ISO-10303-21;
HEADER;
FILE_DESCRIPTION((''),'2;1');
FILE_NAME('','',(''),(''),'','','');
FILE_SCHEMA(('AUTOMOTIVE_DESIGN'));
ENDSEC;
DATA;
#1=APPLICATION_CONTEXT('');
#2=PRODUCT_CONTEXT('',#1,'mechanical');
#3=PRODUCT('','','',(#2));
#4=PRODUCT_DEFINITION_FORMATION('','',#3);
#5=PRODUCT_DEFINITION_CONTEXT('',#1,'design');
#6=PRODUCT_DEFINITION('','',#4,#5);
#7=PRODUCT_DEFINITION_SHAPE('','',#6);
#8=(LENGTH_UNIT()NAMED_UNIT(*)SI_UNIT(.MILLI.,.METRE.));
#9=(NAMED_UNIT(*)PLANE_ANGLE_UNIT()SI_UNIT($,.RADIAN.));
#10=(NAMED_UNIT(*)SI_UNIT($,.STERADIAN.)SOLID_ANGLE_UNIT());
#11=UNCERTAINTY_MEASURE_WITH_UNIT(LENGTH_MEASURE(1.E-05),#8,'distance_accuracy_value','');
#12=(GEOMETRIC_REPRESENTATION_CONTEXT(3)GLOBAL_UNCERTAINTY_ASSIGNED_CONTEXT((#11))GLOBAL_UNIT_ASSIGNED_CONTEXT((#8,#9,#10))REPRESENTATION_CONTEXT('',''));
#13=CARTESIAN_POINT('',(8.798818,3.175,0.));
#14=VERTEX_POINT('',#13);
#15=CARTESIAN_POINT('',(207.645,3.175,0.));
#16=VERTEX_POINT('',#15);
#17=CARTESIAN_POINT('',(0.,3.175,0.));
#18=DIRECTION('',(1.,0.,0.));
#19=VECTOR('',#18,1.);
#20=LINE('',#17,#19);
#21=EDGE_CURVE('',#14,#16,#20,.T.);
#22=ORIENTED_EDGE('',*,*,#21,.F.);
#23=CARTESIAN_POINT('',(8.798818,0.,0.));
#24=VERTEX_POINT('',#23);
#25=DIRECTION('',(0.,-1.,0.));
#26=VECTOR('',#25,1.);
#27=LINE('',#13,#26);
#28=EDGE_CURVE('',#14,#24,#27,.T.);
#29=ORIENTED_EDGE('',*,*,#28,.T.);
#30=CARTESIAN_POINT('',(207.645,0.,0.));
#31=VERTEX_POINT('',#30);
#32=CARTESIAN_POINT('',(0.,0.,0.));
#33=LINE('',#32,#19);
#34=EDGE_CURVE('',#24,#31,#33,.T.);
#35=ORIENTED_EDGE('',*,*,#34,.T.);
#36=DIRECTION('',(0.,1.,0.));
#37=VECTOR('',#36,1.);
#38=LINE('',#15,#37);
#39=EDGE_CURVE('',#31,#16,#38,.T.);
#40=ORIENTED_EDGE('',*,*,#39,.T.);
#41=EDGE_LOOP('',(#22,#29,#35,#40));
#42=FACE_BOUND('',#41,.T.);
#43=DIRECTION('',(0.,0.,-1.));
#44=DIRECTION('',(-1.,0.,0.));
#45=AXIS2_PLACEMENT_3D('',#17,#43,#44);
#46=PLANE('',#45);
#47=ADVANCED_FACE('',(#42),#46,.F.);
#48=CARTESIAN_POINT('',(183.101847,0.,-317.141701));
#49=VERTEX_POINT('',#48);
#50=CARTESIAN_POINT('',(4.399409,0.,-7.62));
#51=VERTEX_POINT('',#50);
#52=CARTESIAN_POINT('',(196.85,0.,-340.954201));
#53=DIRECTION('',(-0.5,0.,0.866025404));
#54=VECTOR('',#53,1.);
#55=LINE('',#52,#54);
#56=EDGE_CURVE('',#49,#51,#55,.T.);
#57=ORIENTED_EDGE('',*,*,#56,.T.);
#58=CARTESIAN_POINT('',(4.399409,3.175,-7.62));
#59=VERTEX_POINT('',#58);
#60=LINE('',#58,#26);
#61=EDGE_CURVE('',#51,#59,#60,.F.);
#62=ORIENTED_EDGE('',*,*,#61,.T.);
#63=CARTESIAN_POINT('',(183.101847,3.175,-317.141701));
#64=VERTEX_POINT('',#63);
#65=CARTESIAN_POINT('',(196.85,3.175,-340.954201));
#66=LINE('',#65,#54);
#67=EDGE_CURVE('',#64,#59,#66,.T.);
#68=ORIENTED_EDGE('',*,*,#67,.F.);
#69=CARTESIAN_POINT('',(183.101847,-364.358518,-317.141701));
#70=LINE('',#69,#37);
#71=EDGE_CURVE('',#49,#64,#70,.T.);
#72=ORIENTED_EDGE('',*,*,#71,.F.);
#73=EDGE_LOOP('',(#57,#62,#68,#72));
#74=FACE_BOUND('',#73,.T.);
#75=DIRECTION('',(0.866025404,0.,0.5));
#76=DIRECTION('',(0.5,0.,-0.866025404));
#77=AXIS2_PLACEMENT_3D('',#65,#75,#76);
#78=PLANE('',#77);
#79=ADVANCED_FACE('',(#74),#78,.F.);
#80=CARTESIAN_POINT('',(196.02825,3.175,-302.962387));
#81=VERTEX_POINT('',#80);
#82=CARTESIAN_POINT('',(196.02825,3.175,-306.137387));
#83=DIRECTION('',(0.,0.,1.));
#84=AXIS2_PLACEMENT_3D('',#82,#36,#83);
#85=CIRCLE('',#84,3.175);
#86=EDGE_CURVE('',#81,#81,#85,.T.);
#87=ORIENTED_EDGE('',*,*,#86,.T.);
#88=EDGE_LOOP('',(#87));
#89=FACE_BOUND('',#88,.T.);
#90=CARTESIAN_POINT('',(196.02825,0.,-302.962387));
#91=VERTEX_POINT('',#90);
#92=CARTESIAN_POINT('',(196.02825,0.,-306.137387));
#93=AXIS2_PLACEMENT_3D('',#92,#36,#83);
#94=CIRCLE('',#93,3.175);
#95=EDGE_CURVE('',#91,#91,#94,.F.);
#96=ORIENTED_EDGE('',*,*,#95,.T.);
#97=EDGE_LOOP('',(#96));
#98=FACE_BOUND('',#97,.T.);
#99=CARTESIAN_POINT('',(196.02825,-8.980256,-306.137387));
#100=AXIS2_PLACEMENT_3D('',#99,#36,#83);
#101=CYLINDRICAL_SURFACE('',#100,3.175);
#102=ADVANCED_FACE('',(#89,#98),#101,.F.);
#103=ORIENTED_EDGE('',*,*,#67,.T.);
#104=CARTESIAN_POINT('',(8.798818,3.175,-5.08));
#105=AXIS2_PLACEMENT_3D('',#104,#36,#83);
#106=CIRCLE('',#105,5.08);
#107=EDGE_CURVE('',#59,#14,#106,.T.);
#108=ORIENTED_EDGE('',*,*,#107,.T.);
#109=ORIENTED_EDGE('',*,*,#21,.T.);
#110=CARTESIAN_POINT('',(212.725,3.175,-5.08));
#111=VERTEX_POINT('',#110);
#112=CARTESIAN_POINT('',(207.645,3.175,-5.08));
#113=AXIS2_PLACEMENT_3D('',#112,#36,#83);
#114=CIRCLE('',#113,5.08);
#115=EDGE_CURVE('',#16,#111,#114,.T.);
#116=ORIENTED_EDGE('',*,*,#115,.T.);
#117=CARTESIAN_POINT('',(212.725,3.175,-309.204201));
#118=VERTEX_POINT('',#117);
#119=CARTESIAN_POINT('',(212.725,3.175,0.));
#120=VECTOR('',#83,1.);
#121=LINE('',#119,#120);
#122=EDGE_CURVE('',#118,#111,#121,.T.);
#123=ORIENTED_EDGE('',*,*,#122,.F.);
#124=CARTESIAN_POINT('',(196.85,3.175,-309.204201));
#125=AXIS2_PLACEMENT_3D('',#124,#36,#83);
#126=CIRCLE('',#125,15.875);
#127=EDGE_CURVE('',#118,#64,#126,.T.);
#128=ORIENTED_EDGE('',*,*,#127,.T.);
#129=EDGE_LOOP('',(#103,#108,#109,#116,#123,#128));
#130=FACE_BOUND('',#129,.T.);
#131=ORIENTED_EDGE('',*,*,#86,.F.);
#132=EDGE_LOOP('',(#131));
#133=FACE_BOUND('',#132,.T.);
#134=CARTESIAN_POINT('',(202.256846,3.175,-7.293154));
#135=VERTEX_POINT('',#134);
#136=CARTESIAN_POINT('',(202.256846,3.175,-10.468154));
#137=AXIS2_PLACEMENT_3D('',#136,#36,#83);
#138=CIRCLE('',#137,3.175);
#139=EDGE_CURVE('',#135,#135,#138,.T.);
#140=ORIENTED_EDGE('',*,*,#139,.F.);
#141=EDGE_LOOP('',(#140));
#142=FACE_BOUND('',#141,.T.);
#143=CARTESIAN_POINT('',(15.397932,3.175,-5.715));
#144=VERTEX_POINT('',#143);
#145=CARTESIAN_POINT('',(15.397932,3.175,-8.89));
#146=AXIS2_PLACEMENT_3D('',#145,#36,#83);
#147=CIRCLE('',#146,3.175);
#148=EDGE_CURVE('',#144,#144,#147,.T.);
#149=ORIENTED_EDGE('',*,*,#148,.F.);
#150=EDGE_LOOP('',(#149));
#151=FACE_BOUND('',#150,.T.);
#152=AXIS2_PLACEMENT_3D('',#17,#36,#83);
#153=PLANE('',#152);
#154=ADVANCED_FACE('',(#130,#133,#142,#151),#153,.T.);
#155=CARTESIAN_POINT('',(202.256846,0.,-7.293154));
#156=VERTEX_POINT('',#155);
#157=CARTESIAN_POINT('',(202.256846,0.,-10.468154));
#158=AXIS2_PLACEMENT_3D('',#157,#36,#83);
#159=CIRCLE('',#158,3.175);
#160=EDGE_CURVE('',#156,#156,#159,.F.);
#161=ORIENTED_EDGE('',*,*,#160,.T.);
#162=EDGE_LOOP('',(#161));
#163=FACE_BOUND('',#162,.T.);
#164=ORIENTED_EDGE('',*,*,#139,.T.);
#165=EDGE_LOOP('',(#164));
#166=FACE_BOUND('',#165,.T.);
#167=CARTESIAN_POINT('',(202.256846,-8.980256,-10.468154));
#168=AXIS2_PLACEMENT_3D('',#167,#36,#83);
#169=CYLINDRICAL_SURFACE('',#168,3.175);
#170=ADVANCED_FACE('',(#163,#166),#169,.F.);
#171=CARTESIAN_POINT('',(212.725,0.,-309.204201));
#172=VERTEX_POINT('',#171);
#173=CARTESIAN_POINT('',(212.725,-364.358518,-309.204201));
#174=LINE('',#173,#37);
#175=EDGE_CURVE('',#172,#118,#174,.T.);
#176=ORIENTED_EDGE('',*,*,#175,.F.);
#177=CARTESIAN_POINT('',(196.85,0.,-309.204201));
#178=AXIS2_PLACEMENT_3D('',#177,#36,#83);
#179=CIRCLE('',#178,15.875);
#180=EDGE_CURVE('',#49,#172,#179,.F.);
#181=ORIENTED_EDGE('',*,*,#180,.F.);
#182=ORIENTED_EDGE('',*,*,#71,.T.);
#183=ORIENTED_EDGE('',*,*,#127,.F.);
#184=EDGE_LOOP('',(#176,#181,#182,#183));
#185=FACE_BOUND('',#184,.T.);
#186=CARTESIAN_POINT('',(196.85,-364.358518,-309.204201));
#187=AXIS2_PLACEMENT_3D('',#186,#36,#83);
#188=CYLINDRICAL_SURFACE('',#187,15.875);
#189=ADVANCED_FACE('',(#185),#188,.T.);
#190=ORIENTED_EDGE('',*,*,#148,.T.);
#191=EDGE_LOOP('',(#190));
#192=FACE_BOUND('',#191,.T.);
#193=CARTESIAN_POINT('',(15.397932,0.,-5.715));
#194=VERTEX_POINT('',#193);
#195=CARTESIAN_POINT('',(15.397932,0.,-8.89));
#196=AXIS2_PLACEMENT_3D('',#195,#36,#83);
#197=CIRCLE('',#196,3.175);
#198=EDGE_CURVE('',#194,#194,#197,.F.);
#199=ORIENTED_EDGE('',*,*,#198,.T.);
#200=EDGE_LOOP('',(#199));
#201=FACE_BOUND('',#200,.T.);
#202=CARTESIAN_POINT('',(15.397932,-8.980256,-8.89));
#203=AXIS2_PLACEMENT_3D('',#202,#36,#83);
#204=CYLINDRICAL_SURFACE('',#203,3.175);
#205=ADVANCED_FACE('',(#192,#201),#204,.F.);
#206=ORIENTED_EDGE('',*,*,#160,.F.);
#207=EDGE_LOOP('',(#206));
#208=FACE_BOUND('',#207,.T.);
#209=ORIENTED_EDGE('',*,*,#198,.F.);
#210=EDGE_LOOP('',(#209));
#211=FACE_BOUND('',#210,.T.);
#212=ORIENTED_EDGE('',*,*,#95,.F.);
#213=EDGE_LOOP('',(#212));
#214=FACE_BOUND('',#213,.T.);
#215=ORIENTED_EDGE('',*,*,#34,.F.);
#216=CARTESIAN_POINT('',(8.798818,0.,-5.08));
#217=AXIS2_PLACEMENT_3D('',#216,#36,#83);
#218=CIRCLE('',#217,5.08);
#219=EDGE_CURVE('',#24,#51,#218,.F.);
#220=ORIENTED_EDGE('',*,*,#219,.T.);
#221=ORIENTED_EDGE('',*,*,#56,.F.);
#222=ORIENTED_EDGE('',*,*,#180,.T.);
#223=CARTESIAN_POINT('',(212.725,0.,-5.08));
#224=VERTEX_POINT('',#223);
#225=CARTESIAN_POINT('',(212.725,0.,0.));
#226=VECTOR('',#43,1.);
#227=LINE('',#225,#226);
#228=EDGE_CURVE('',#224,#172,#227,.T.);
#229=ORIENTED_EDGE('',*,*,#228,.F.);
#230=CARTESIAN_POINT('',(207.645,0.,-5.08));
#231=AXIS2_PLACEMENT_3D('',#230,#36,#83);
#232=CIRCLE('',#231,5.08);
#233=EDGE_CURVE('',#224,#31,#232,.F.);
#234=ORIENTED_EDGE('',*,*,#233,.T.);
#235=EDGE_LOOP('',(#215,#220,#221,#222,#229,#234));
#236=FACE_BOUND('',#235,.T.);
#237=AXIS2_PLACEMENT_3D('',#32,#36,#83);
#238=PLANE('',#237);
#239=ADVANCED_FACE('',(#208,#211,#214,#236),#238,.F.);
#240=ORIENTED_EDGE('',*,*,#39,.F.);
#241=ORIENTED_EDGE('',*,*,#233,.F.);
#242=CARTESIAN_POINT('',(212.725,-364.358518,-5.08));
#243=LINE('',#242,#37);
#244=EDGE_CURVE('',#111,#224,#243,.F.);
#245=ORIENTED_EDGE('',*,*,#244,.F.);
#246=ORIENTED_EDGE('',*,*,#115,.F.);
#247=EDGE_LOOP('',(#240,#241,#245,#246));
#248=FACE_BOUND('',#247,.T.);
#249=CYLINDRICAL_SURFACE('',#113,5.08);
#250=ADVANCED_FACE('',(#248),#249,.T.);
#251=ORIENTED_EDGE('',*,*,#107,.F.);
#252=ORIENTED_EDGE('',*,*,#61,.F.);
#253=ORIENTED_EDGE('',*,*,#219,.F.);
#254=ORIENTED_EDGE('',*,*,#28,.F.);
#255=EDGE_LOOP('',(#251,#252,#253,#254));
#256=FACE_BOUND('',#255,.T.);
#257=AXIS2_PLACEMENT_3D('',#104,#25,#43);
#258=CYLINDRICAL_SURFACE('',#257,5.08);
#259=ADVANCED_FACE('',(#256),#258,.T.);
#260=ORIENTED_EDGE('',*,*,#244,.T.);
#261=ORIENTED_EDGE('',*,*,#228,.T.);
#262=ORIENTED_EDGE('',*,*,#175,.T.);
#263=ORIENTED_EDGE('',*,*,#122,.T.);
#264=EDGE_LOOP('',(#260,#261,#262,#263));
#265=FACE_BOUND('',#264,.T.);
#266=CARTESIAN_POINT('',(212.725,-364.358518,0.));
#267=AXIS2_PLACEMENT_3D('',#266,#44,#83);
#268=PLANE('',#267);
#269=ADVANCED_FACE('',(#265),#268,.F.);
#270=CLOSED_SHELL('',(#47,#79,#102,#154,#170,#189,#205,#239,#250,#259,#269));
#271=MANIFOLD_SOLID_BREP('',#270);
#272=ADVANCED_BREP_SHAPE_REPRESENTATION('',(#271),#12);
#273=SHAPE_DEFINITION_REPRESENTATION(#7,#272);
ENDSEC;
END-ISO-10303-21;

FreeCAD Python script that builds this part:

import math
import FreeCAD as App
import Part
import Sketcher
from FreeCAD import Vector
Q = App.Units.Quantity


def edges_at(feature, points):
    """Names of the edges that pass closest to the given points."""
    edges = feature.Shape.Edges
    near = lambda p: min(range(len(edges)), key=lambda i: edges[i].distToShape(Part.Vertex(*p))[0])
    return sorted({f"Edge{near(p) + 1}" for p in points})


def add_polygon(sketch, points):
    """Adds a closed chain of lines whose ends are joined by coincident constraints."""
    first, n = sketch.GeometryCount, len(points)
    for a, b in zip(points, points[1:] + points[:1]):
        sketch.addGeometry(Part.LineSegment(App.Vector(*a, 0), App.Vector(*b, 0)), False)
    for i in range(n):
        sketch.addConstraint(Sketcher.Constraint("Coincident", first + i, 2, first + (i + 1) % n, 1))

doc = App.newDocument("Part")
body = doc.addObject("PartDesign::Body", "Body")

# Sketch on XZ plane
sketch1 = body.newObject("Sketcher::SketchObject", "Sketch")
sketch1.AttachmentSupport = (doc.getObject("XZ_Plane"), [""])
sketch1.MapMode = "FlatFace"
add_polygon(sketch1, [(0, 0), (393.7, 0), (196.85, -340.954201)])  # lines 0-2
sketch1.addConstraint(Sketcher.Constraint("Horizontal", 0))
sketch1.addConstraint(Sketcher.Constraint("Coincident", 2, 2, -1, 1))
sketch1.addConstraint(Sketcher.Constraint("Equal", 1, 2))
sketch1.addConstraint(Sketcher.Constraint("DistanceX", 0, 1, 0, 2, Q("15.5 in")))
sketch1.addConstraint(Sketcher.Constraint("Angle", 1, Q("-120 deg")))
pad1 = body.newObject("PartDesign::Pad", "Pad")
pad1.Profile = sketch1
pad1.Length = Q("0.125 in")
pad1.Reversed = True
doc.recompute()

fillet = body.newObject("PartDesign::Fillet", "Fillet")
fillet.Base = (pad1, edges_at(pad1, [(196.85, 1.587, -340.954), (393.7, 1.587, 0), (0, 1.587, 0)]))
fillet.Radius = Q("0.2 in")

# Sketch on XZ plane
sketch2 = body.newObject("Sketcher::SketchObject", "Sketch001")
sketch2.AttachmentSupport = (doc.getObject("XZ_Plane"), [""])
sketch2.MapMode = "FlatFace"
sketch2.AttachmentOffset = App.Placement(Vector(0, 0, -0.125 * 25.4), App.Rotation())
sketch2.addGeometry(Part.LineSegment(Vector(389.300591, -7.62, 0), Vector(210.598153, -317.141701, 0)), False)
sketch2.addGeometry(Part.ArcOfCircle(Part.Circle(Vector(196.85, -309.204201, 0), Vector(0, 0, 1), 15.875), math.radians(-30), math.radians(0)), False)
sketch2.addGeometry(Part.LineSegment(Vector(212.725, -309.204201, 0), Vector(212.725, 0, 0)), False)
sketch2.addGeometry(Part.LineSegment(Vector(212.725, 0, 0), Vector(384.901182, 0, 0)), False)
sketch2.addGeometry(Part.ArcOfCircle(Part.Circle(Vector(384.901182, -5.08, 0), Vector(0, 0, 1), 5.08), math.radians(-30), math.radians(90)), False)
sketch2.addGeometry(Part.LineSegment(Vector(210.598153, -317.141701, 0), Vector(201.249409, -333.334201, 0)), False)
sketch2.addGeometry(Part.ArcOfCircle(Part.Circle(Vector(196.85, -330.794201, 0), Vector(0, 0, 1), 5.08), math.radians(-150), math.radians(-30)), False)
sketch2.addGeometry(Part.LineSegment(Vector(192.450591, -333.334201, 0), Vector(183.101847, -317.141701, 0)), False)
sketch2.addGeometry(Part.ArcOfCircle(Part.Circle(Vector(196.85, -309.204201, 0), Vector(0, 0, 1), 15.875), math.radians(-150), math.radians(-30)), False)
sketch2.addConstraint(Sketcher.Constraint("Tangent", 0, 2, 1, 1))
sketch2.addConstraint(Sketcher.Constraint("Tangent", 1, 2, 2, 1))
sketch2.addConstraint(Sketcher.Constraint("Coincident", 2, 2, 3, 1))
sketch2.addConstraint(Sketcher.Constraint("Tangent", 3, 2, 4, 2))
sketch2.addConstraint(Sketcher.Constraint("Tangent", 4, 1, 0, 1))
sketch2.addConstraint(Sketcher.Constraint("Tangent", 5, 2, 6, 2))
sketch2.addConstraint(Sketcher.Constraint("Tangent", 6, 1, 7, 1))
sketch2.addConstraint(Sketcher.Constraint("Tangent", 7, 2, 8, 1))
sketch2.addConstraint(Sketcher.Constraint("Tangent", 8, 2, 5, 1))
sketch2.addConstraint(Sketcher.Constraint("Vertical", 2))
sketch2.addConstraint(Sketcher.Constraint("Horizontal", 3))
sketch2.addConstraint(Sketcher.Constraint("Coincident", 8, 3, 1, 3))
sketch2.addConstraint(Sketcher.Constraint("Coincident", 8, 2, 0, 2))
sketch2.addConstraint(Sketcher.Constraint("Equal", 4, 6))
sketch2.addConstraint(Sketcher.Constraint("PointOnObject", 2, 2, -1))
sketch2.addConstraint(Sketcher.Constraint("Horizontal", 5, 2, 6, 1))
sketch2.addConstraint(Sketcher.Constraint("Radius", 4, Q("0.2 in")))
sketch2.addConstraint(Sketcher.Constraint("Angle", 0, Q("-120 deg")))
sketch2.addConstraint(Sketcher.Constraint("Radius", 1, Q("0.625 in")))
sketch2.addConstraint(Sketcher.Constraint("DistanceX", -1, 1, 1, 3, Q("7.75 in")))
sketch2.addConstraint(Sketcher.Constraint("DistanceY", 2, 1, 2, 2, Q("309.204201 mm")))
pocket1 = body.newObject("PartDesign::Pocket", "Pocket")
pocket1.Profile = sketch2
pocket1.Length = Q("0.125 in")
pocket1.Reversed = True
doc.recompute()

fillet2 = body.newObject("PartDesign::Fillet", "Fillet001")
fillet2.Base = (pocket1, edges_at(pocket1, [(212.725, 1.587, 0)]))
fillet2.Radius = Q("0.2 in")

# Sketch on XZ plane
sketch3 = body.newObject("Sketcher::SketchObject", "Sketch002")
sketch3.AttachmentSupport = (doc.getObject("XZ_Plane"), [""])
sketch3.MapMode = "FlatFace"
sketch3.AttachmentOffset = App.Placement(Vector(0, 0, -0.125 * 25.4), App.Rotation())
sketch3.addGeometry(Part.Circle(Vector(196.02825, -306.137387, 0), Vector(0, 0, 1), 3.175), False)
sketch3.addGeometry(Part.Circle(Vector(202.256846, -10.468154, 0), Vector(0, 0, 1), 3.175), False)
sketch3.addGeometry(Part.Circle(Vector(15.397932, -8.89, 0), Vector(0, 0, 1), 3.175), False)
sketch3.addConstraint(Sketcher.Constraint("Equal", 0, 1))
sketch3.addConstraint(Sketcher.Constraint("Equal", 1, 2))
sketch3.addConstraint(Sketcher.Constraint("Diameter", 0, Q("0.25 in")))
sketch3.addConstraint(Sketcher.Constraint("DistanceY", 2, 3, -1, 1, Q("0.35 in")))
sketch3.addConstraint(Sketcher.Constraint("DistanceX", -1, 1, 0, 3, Q("196.02825 mm")))
sketch3.addConstraint(Sketcher.Constraint("DistanceX", -1, 1, 2, 3, Q("15.397932 mm")))
sketch3.addConstraint(Sketcher.Constraint("DistanceY", 0, 3, -1, 1, Q("306.137387 mm")))
sketch3.addConstraint(Sketcher.Constraint("DistanceX", -1, 1, 1, 3, Q("202.256846 mm")))
sketch3.addConstraint(Sketcher.Constraint("DistanceY", 1, 3, -1, 1, Q("10.468154 mm")))
pocket2 = body.newObject("PartDesign::Pocket", "Pocket001")
pocket2.Profile = sketch3
pocket2.Length = Q("0.125 in")
pocket2.Reversed = True

doc.recompute()
